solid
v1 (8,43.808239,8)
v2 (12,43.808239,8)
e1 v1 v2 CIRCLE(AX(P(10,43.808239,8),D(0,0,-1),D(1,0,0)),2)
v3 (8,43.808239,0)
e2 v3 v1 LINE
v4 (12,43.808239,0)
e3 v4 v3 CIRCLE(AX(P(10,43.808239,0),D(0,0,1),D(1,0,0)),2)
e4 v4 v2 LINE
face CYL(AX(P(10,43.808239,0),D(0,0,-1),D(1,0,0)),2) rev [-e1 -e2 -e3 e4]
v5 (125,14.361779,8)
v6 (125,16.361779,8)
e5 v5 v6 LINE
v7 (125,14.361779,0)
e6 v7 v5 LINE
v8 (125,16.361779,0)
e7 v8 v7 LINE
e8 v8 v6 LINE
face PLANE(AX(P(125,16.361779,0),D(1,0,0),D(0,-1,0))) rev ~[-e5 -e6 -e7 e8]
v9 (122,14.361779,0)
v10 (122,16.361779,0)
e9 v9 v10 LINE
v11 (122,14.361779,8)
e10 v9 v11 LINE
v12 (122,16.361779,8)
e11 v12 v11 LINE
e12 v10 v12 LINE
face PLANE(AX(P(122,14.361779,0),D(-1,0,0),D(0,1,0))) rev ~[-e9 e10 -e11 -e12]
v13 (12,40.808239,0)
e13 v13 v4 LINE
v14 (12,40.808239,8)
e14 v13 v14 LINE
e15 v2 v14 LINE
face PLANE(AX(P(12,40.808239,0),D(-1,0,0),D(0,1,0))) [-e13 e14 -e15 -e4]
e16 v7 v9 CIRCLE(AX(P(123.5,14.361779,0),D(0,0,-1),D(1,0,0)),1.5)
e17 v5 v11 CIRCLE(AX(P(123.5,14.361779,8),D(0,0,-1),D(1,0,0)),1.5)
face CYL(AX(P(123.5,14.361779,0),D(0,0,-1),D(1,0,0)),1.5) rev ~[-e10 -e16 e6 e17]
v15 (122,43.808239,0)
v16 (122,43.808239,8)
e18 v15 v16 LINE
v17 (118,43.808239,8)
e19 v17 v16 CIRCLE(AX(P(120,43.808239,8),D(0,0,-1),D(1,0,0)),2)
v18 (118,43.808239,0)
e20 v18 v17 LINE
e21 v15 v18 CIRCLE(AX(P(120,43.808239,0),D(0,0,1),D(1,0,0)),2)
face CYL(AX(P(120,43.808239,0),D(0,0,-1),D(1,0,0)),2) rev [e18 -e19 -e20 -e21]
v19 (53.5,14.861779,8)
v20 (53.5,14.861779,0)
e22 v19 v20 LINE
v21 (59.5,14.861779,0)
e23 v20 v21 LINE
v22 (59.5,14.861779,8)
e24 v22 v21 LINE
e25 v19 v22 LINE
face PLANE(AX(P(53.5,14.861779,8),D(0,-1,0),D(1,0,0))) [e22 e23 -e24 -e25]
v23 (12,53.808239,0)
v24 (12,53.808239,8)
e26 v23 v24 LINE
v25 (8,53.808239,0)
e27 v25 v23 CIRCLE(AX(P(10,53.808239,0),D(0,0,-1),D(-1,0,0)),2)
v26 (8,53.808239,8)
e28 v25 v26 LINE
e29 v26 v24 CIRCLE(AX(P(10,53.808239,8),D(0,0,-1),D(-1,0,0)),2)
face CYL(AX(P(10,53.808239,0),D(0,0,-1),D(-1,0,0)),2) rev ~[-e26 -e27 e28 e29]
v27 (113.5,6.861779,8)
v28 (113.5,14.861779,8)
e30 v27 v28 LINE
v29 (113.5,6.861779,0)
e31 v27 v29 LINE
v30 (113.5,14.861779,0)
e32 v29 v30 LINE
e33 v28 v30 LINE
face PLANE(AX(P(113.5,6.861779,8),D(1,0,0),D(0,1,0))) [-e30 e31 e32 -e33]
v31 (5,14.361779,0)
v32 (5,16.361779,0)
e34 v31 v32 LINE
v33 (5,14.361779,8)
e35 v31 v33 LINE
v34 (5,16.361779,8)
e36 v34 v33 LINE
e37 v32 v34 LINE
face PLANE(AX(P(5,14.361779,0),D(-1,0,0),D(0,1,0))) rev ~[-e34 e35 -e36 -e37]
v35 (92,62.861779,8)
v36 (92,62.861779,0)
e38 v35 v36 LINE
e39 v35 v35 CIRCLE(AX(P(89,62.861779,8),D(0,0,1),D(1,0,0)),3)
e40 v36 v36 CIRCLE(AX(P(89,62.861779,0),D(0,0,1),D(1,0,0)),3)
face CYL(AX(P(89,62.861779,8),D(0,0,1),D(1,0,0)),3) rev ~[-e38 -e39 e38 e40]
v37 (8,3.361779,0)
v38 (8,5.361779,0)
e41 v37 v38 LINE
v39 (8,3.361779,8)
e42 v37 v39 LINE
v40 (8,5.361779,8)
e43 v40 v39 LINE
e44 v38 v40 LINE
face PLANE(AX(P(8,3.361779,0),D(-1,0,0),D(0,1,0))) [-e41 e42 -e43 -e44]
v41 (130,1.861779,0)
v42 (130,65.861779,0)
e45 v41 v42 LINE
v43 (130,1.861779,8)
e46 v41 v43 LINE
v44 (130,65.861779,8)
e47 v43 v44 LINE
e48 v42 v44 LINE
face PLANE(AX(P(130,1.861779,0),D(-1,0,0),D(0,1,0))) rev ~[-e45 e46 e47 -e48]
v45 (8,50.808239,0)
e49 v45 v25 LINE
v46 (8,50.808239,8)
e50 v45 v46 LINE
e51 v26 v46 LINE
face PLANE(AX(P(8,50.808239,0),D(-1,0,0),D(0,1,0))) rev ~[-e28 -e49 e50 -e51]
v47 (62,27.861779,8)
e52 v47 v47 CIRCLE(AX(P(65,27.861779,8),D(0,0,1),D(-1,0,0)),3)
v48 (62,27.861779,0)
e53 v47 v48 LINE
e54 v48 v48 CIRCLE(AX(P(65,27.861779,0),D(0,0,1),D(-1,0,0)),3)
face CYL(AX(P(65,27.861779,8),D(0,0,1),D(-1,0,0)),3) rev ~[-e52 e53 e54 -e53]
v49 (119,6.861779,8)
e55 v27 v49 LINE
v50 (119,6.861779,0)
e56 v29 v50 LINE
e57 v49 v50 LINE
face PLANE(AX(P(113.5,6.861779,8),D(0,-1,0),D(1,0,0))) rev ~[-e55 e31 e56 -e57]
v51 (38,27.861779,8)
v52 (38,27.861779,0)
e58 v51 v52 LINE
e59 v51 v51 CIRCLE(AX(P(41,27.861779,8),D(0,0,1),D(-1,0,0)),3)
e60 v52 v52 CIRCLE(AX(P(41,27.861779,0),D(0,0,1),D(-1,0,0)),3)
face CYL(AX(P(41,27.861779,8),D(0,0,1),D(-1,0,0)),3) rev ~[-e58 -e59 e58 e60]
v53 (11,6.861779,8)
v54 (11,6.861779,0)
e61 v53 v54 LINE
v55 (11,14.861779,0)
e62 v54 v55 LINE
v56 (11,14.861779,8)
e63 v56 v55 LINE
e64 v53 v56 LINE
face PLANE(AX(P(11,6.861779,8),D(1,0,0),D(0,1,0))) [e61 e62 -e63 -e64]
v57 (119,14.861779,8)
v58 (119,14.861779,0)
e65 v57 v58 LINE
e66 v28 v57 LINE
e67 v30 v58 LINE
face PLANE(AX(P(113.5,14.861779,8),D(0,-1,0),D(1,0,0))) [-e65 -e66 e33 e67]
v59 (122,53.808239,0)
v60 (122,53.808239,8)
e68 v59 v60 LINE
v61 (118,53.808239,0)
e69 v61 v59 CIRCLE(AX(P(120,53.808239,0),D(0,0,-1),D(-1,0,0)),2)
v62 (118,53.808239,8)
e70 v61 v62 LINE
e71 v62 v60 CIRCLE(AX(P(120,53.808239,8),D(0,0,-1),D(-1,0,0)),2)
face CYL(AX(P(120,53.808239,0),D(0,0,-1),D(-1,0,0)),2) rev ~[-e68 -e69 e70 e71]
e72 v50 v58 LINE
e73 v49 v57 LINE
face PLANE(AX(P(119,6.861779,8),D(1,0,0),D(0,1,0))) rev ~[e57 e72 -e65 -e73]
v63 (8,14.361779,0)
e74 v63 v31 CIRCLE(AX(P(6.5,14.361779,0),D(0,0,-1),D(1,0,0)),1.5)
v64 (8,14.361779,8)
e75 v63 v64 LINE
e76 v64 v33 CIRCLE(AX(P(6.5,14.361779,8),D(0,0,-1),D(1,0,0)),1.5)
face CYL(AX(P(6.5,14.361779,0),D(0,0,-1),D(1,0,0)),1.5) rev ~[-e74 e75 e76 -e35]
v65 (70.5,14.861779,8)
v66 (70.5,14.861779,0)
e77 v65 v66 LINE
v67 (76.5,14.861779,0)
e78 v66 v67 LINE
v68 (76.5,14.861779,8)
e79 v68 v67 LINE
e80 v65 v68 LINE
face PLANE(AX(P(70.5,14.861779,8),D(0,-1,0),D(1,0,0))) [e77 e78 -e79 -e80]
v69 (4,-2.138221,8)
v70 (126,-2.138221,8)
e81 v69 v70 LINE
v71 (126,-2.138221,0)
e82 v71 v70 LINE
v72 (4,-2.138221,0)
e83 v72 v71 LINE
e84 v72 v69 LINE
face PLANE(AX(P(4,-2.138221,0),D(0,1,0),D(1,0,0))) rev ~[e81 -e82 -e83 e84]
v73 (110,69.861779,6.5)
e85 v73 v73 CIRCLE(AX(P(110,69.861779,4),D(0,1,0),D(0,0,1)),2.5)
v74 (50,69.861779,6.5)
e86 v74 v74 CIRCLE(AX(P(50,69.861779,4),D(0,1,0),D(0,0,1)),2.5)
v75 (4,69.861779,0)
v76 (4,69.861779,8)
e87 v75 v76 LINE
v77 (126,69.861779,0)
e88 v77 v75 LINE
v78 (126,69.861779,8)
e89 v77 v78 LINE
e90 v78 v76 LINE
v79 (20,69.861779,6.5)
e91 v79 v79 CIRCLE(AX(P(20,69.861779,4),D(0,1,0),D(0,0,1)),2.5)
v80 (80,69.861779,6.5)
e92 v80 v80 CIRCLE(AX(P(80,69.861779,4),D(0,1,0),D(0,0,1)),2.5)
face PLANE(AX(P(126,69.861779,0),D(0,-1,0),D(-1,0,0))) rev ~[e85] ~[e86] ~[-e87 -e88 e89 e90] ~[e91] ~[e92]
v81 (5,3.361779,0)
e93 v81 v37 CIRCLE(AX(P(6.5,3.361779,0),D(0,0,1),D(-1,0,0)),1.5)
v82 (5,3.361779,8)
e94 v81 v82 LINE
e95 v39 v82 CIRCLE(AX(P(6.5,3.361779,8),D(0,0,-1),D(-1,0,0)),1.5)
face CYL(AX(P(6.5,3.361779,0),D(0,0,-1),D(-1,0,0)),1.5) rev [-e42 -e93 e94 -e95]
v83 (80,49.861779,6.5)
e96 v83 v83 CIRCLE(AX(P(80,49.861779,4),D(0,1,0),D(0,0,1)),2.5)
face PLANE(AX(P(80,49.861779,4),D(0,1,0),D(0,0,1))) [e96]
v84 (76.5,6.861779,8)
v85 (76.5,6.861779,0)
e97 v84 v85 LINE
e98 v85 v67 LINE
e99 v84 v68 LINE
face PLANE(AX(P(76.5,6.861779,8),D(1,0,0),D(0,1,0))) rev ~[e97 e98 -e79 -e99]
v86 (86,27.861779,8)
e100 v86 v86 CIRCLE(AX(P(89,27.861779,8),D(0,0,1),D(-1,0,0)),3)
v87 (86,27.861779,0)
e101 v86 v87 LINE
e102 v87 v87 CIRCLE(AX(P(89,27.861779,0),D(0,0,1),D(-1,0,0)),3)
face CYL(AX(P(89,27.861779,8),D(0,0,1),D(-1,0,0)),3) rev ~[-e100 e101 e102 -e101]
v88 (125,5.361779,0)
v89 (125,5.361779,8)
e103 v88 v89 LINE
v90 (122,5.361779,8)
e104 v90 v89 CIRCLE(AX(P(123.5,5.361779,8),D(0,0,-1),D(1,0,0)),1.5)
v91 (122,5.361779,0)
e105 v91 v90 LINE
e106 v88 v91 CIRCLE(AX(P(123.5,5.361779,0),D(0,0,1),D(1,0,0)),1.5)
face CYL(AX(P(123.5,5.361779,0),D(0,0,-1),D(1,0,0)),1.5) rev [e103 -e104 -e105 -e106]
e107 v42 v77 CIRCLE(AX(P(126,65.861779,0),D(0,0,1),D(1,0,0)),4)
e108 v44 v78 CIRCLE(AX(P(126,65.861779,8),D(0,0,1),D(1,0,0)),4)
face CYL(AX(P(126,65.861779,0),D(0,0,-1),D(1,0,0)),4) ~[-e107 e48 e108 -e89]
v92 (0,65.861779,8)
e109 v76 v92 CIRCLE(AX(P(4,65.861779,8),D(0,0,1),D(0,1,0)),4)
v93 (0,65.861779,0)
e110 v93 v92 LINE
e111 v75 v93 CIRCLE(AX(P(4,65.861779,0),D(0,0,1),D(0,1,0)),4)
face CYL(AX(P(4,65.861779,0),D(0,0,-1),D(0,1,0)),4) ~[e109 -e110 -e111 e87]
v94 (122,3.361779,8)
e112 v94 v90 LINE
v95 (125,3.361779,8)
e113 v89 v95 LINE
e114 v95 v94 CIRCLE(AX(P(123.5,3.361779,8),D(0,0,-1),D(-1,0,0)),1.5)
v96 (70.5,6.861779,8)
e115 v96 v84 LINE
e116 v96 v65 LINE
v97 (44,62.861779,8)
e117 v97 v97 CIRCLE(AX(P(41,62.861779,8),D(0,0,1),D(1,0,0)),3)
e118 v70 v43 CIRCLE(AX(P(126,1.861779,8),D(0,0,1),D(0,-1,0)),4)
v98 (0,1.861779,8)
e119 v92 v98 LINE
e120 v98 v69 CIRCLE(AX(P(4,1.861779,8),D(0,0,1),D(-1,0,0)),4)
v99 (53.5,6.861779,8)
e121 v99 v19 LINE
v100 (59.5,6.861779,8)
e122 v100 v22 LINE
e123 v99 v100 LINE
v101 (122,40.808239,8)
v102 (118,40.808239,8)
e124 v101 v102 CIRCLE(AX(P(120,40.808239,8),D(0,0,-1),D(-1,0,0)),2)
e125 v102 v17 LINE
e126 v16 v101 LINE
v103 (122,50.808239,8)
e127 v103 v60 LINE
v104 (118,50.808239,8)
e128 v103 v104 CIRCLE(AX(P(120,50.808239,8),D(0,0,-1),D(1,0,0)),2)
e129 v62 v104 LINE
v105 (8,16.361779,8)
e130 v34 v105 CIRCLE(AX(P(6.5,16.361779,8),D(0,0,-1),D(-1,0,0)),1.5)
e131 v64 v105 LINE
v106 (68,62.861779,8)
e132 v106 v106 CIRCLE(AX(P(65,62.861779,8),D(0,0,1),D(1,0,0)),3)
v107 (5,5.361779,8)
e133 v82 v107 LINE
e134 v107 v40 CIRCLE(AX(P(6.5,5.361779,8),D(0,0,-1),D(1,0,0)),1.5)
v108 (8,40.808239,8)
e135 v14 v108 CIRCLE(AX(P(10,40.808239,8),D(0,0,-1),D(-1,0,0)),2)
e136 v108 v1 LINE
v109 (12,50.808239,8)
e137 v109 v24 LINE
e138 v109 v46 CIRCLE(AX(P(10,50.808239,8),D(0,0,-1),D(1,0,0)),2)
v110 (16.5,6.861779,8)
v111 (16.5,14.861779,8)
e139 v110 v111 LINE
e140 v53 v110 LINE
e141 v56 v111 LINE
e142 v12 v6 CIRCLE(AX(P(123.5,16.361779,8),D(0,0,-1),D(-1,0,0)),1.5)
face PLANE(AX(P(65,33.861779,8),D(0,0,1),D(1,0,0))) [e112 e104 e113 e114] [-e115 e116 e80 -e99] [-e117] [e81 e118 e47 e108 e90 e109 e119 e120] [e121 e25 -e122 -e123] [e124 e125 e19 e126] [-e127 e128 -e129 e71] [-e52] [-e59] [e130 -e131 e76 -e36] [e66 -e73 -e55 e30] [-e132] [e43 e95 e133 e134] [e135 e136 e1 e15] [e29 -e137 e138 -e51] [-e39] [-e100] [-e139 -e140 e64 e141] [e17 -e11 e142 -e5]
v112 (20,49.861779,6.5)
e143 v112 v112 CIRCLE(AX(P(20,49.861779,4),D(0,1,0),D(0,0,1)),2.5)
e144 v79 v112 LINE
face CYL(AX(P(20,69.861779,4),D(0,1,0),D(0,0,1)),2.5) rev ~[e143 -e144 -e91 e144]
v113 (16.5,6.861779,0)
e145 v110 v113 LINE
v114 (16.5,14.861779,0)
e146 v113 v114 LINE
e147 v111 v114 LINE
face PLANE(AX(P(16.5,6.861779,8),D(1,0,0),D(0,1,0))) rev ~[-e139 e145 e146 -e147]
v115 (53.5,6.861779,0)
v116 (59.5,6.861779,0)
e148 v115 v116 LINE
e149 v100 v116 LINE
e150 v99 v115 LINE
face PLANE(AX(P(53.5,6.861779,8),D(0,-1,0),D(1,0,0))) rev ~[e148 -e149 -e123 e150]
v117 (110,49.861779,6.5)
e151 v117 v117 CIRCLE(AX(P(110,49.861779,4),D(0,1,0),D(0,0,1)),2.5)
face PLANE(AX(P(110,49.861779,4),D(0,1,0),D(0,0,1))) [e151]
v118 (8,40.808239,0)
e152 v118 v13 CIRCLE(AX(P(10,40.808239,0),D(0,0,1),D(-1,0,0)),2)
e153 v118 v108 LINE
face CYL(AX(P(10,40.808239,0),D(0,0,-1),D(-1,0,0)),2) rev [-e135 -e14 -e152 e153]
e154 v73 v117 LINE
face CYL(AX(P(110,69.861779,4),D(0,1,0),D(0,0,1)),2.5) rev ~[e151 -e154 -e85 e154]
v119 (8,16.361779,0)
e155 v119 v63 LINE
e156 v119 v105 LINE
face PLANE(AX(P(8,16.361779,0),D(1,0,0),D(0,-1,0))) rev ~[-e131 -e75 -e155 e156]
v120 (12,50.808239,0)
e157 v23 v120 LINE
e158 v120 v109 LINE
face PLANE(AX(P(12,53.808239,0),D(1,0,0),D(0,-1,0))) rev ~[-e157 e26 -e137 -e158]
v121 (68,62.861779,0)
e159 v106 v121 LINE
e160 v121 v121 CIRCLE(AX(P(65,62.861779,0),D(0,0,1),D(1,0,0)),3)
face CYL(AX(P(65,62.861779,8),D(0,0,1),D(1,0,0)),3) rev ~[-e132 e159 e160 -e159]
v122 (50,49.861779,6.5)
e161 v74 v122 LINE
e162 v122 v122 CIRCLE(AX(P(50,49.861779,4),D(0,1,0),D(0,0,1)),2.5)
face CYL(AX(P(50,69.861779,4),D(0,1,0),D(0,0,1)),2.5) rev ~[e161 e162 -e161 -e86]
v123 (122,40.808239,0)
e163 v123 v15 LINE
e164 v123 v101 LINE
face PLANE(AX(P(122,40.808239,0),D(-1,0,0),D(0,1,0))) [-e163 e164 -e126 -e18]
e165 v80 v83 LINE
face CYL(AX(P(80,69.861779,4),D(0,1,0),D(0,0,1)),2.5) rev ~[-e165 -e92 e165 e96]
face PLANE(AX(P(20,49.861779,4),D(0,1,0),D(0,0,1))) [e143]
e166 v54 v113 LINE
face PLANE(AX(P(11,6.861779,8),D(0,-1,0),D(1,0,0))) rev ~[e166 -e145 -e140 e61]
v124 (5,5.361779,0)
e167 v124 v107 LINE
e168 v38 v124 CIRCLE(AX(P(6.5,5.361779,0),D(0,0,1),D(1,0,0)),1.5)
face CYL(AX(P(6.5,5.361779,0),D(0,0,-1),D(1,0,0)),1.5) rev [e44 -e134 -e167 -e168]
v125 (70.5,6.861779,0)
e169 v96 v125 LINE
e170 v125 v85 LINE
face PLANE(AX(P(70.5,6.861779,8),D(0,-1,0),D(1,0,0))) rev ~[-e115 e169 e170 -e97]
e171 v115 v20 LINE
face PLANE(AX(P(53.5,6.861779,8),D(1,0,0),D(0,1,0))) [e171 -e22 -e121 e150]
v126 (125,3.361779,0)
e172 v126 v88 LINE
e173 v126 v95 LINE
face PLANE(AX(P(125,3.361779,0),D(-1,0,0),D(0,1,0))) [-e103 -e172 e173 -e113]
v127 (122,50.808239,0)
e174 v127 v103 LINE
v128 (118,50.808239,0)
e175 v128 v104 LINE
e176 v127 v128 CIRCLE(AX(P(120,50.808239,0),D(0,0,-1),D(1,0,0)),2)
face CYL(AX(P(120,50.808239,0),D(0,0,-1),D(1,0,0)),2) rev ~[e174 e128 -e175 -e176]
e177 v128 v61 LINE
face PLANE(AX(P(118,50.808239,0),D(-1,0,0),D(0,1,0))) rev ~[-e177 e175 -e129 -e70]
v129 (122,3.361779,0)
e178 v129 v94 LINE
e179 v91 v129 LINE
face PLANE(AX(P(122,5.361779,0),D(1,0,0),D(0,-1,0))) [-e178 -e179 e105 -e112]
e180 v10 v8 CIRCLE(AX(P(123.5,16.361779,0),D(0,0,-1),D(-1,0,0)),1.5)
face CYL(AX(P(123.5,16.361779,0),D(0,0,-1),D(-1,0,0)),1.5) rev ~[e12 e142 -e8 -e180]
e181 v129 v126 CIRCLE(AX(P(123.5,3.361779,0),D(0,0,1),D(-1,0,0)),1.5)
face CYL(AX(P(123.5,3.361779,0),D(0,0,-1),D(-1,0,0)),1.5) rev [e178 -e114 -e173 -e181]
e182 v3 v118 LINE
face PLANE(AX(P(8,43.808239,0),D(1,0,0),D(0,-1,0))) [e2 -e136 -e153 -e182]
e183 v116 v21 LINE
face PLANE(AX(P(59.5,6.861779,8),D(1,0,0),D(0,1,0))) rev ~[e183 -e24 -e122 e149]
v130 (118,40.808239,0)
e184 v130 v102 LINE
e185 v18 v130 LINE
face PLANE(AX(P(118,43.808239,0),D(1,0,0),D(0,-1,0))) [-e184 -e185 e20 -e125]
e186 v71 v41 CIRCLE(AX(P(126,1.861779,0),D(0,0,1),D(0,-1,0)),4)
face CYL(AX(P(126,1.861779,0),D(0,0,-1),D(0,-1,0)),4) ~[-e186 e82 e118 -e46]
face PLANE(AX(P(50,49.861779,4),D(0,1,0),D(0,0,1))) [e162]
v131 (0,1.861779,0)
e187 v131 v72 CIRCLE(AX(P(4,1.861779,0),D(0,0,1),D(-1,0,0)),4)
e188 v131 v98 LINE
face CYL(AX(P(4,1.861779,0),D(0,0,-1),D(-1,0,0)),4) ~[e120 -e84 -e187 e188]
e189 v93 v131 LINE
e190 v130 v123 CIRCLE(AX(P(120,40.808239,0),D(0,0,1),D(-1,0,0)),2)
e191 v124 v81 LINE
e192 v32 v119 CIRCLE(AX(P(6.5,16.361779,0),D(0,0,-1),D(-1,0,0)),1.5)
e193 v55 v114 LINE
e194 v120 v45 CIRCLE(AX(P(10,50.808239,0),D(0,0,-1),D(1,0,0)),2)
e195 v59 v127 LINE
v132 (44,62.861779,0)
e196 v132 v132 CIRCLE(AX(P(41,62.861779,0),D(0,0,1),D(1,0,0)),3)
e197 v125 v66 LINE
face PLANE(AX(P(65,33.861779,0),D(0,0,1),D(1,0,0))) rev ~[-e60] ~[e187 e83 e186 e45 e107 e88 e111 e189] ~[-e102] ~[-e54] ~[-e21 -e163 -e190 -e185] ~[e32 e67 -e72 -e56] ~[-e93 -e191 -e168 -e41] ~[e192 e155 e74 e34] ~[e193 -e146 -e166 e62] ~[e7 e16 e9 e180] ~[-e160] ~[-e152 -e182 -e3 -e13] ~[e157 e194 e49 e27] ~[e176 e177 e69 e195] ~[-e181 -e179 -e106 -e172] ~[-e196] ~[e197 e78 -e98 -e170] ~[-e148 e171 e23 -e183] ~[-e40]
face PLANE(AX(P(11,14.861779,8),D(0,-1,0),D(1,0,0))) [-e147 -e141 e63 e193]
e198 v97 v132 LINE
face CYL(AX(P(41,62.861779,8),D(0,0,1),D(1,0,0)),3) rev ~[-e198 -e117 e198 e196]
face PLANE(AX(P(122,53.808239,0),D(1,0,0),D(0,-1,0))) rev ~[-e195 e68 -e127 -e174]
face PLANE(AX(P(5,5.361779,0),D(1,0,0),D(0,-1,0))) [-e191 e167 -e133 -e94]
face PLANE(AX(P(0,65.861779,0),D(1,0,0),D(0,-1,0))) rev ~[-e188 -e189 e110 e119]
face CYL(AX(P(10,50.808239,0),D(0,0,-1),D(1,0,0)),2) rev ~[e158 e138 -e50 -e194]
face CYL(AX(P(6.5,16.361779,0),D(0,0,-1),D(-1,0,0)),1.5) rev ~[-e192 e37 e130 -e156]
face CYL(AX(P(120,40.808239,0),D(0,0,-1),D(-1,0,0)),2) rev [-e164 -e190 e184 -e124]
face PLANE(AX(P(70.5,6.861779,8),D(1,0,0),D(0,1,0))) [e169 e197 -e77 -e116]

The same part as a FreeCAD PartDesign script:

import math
import FreeCAD as App
import Part
import Sketcher
from FreeCAD import Vector
Q = App.Units.Quantity

doc = App.newDocument("Part")
params = doc.addObject("Spreadsheet::Sheet", "Params")
for row, (alias, value) in enumerate([
    ("sketch1_radius", "4 mm"),
    ("sketch1_width", "122 mm"),
    ("sketch1_height", "64 mm"),
    ("pad1_length", "8 mm"),
    ("sketch2_width", "6 mm"),
    ("sketch2_height", "8 mm"),
    ("sketch2_width2", "5.5 mm"),
    ("pocket1_length", "10 mm"),
    ("sketch3_diameter", "5 mm"),
    ("pocket2_length", "20 mm"),
    ("sketch4_diameter", "6 mm"),
    ("sketch5_radius", "1.5 mm"),
    ("sketch5_height", "2 mm"),
    ("sketch6_radius", "2 mm"),
    ("sketch6_height", "3 mm"),
], start=1):
    params.set(f"A{row}", alias)
    params.set(f"B{row}", "=" + value)
    params.setAlias(f"B{row}", alias)

body = doc.addObject("PartDesign::Body", "Body")

sketch1 = body.newObject("Sketcher::SketchObject", "Sketch")
sketch1.AttachmentSupport = (doc.getObject("XY_Plane"), [""])
sketch1.MapMode = "FlatFace"
sketch1.addGeometry(Part.LineSegment(Vector(4, -2.1, 0), Vector(126, -2.1, 0)), False)
sketch1.addGeometry(Part.ArcOfCircle(Part.Circle(Vector(126, 1.9, 0), Vector(0, 0, 1), 4), math.radians(-90), math.radians(0)), False)
sketch1.addGeometry(Part.LineSegment(Vector(130, 1.9, 0), Vector(130, 65.9, 0)), False)
sketch1.addGeometry(Part.ArcOfCircle(Part.Circle(Vector(126, 65.9, 0), Vector(0, 0, 1), 4), math.radians(0), math.radians(90)), False)
sketch1.addGeometry(Part.LineSegment(Vector(126, 69.9, 0), Vector(4, 69.9, 0)), False)
sketch1.addGeometry(Part.ArcOfCircle(Part.Circle(Vector(4, 65.9, 0), Vector(0, 0, 1), 4), math.radians(90), math.radians(180)), False)
sketch1.addGeometry(Part.LineSegment(Vector(0, 65.9, 0), Vector(0, 1.9, 0)), False)
sketch1.addGeometry(Part.ArcOfCircle(Part.Circle(Vector(4, 1.9, 0), Vector(0, 0, 1), 4), math.radians(-180), math.radians(-90)), False)
sketch1.addConstraint(Sketcher.Constraint("Tangent", 0, 2, 1, 1))
sketch1.addConstraint(Sketcher.Constraint("Tangent", 1, 2, 2, 1))
sketch1.addConstraint(Sketcher.Constraint("Tangent", 2, 2, 3, 1))
sketch1.addConstraint(Sketcher.Constraint("Tangent", 3, 2, 4, 1))
sketch1.addConstraint(Sketcher.Constraint("Tangent", 4, 2, 5, 1))
sketch1.addConstraint(Sketcher.Constraint("Tangent", 5, 2, 6, 1))
sketch1.addConstraint(Sketcher.Constraint("Tangent", 6, 2, 7, 1))
sketch1.addConstraint(Sketcher.Constraint("Tangent", 7, 2, 0, 1))
sketch1.addConstraint(Sketcher.Constraint("Horizontal", 0))
sketch1.addConstraint(Sketcher.Constraint("Vertical", 2))
sketch1.addConstraint(Sketcher.Constraint("Horizontal", 4))
sketch1.addConstraint(Sketcher.Constraint("Vertical", 6))
sketch1.addConstraint(Sketcher.Constraint("Equal", 1, 3))
sketch1.addConstraint(Sketcher.Constraint("Equal", 3, 5))
sketch1.addConstraint(Sketcher.Constraint("Equal", 5, 7))
sketch1.addConstraint(Sketcher.Constraint("PointOnObject", 5, 2, -2))
sketch1.addConstraint(Sketcher.Constraint("Radius", 1, Q("4 mm")))
sketch1.addConstraint(Sketcher.Constraint("DistanceX", 0, 1, 0, 2, Q("122 mm")))
sketch1.addConstraint(Sketcher.Constraint("DistanceY", 2, 1, 2, 2, Q("64 mm")))
sketch1.addConstraint(Sketcher.Constraint("DistanceY", -1, 1, 1, 3, Q("1.861779 mm")))
sketch1.setExpression("Constraints[16]", "Params.sketch1_radius")
sketch1.setExpression("Constraints[17]", "Params.sketch1_width")
sketch1.setExpression("Constraints[18]", "Params.sketch1_height")
pad1 = body.newObject("PartDesign::Pad", "Pad")
pad1.Profile = sketch1
pad1.setExpression("Length", "Params.pad1_length")

sketch2 = body.newObject("Sketcher::SketchObject", "Sketch001")
sketch2.AttachmentSupport = (doc.getObject("XY_Plane"), [""])
sketch2.MapMode = "FlatFace"
sketch2.AttachmentOffset = App.Placement(Vector(0, 0, 8), App.Rotation())
sketch2.addGeometry(Part.LineSegment(Vector(11, 15, 0), Vector(11, 7, 0)), False)
sketch2.addGeometry(Part.LineSegment(Vector(11, 7, 0), Vector(16, 7, 0)), False)
sketch2.addGeometry(Part.LineSegment(Vector(16, 7, 0), Vector(16, 15, 0)), False)
sketch2.addGeometry(Part.LineSegment(Vector(16, 15, 0), Vector(11, 15, 0)), False)
sketch2.addGeometry(Part.LineSegment(Vector(54, 15, 0), Vector(54, 7, 0)), False)
sketch2.addGeometry(Part.LineSegment(Vector(54, 7, 0), Vector(60, 7, 0)), False)
sketch2.addGeometry(Part.LineSegment(Vector(60, 7, 0), Vector(60, 15, 0)), False)
sketch2.addGeometry(Part.LineSegment(Vector(60, 15, 0), Vector(54, 15, 0)), False)
sketch2.addGeometry(Part.LineSegment(Vector(70, 15, 0), Vector(70, 7, 0)), False)
sketch2.addGeometry(Part.LineSegment(Vector(70, 7, 0), Vector(76, 7, 0)), False)
sketch2.addGeometry(Part.LineSegment(Vector(76, 7, 0), Vector(76, 15, 0)), False)
sketch2.addGeometry(Part.LineSegment(Vector(76, 15, 0), Vector(70, 15, 0)), False)
sketch2.addGeometry(Part.LineSegment(Vector(114, 15, 0), Vector(114, 7, 0)), False)
sketch2.addGeometry(Part.LineSegment(Vector(114, 7, 0), Vector(119, 7, 0)), False)
sketch2.addGeometry(Part.LineSegment(Vector(119, 7, 0), Vector(119, 15, 0)), False)
sketch2.addGeometry(Part.LineSegment(Vector(119, 15, 0), Vector(114, 15, 0)), False)
sketch2.addConstraint(Sketcher.Constraint("Coincident", 0, 2, 1, 1))
sketch2.addConstraint(Sketcher.Constraint("Coincident", 1, 2, 2, 1))
sketch2.addConstraint(Sketcher.Constraint("Coincident", 2, 2, 3, 1))
sketch2.addConstraint(Sketcher.Constraint("Coincident", 3, 2, 0, 1))
sketch2.addConstraint(Sketcher.Constraint("Coincident", 4, 2, 5, 1))
sketch2.addConstraint(Sketcher.Constraint("Coincident", 5, 2, 6, 1))
sketch2.addConstraint(Sketcher.Constraint("Coincident", 6, 2, 7, 1))
sketch2.addConstraint(Sketcher.Constraint("Coincident", 7, 2, 4, 1))
sketch2.addConstraint(Sketcher.Constraint("Coincident", 8, 2, 9, 1))
sketch2.addConstraint(Sketcher.Constraint("Coincident", 9, 2, 10, 1))
sketch2.addConstraint(Sketcher.Constraint("Coincident", 10, 2, 11, 1))
sketch2.addConstraint(Sketcher.Constraint("Coincident", 11, 2, 8, 1))
sketch2.addConstraint(Sketcher.Constraint("Coincident", 12, 2, 13, 1))
sketch2.addConstraint(Sketcher.Constraint("Coincident", 13, 2, 14, 1))
sketch2.addConstraint(Sketcher.Constraint("Coincident", 14, 2, 15, 1))
sketch2.addConstraint(Sketcher.Constraint("Coincident", 15, 2, 12, 1))
sketch2.addConstraint(Sketcher.Constraint("Vertical", 0))
sketch2.addConstraint(Sketcher.Constraint("Horizontal", 1))
sketch2.addConstraint(Sketcher.Constraint("Vertical", 2))
sketch2.addConstraint(Sketcher.Constraint("Horizontal", 3))
sketch2.addConstraint(Sketcher.Constraint("Vertical", 4))
sketch2.addConstraint(Sketcher.Constraint("Horizontal", 5))
sketch2.addConstraint(Sketcher.Constraint("Vertical", 6))
sketch2.addConstraint(Sketcher.Constraint("Horizontal", 7))
sketch2.addConstraint(Sketcher.Constraint("Vertical", 8))
sketch2.addConstraint(Sketcher.Constraint("Horizontal", 9))
sketch2.addConstraint(Sketcher.Constraint("Vertical", 10))
sketch2.addConstraint(Sketcher.Constraint("Horizontal", 11))
sketch2.addConstraint(Sketcher.Constraint("Vertical", 12))
sketch2.addConstraint(Sketcher.Constraint("Horizontal", 13))
sketch2.addConstraint(Sketcher.Constraint("Vertical", 14))
sketch2.addConstraint(Sketcher.Constraint("Horizontal", 15))
sketch2.addConstraint(Sketcher.Constraint("Horizontal", 1, 2, 4, 2))
sketch2.addConstraint(Sketcher.Constraint("Horizontal", 3, 2, 6, 2))
sketch2.addConstraint(Sketcher.Constraint("Horizontal", 5, 2, 8, 2))
sketch2.addConstraint(Sketcher.Constraint("Horizontal", 7, 2, 10, 2))
sketch2.addConstraint(Sketcher.Constraint("Horizontal", 9, 2, 12, 2))
sketch2.addConstraint(Sketcher.Constraint("Horizontal", 11, 2, 14, 2))
sketch2.addConstraint(Sketcher.Constraint("Equal", 7, 9))
sketch2.addConstraint(Sketcher.Constraint("Equal", 3, 13))
sketch2.addConstraint(Sketcher.Constraint("DistanceX", 5, 1, 5, 2, Q("6 mm")))
sketch2.addConstraint(Sketcher.Constraint("DistanceY", 0, 2, 0, 1, Q("8 mm")))
sketch2.addConstraint(Sketcher.Constraint("DistanceX", 1, 1, 1, 2, Q("5.5 mm")))
sketch2.addConstraint(Sketcher.Constraint("DistanceX", -1, 1, 0, 2, Q("11 mm")))
sketch2.addConstraint(Sketcher.Constraint("DistanceX", -1, 1, 13, 2, Q("119 mm")))
sketch2.addConstraint(Sketcher.Constraint("DistanceX", 1, 2, 4, 2, Q("37 mm")))
sketch2.addConstraint(Sketcher.Constraint("DistanceX", 5, 2, 8, 2, Q("11 mm")))
sketch2.addConstraint(Sketcher.Constraint("DistanceY", -1, 1, 0, 2, Q("6.861779 mm")))
sketch2.setExpression("Constraints[40]", "Params.sketch2_width")
sketch2.setExpression("Constraints[41]", "Params.sketch2_height")
sketch2.setExpression("Constraints[42]", "Params.sketch2_width2")
pocket1 = body.newObject("PartDesign::Pocket", "Pocket")
pocket1.Profile = sketch2
pocket1.setExpression("Length", "Params.pocket1_length")

sketch3 = body.newObject("Sketcher::SketchObject", "Sketch002")
sketch3.AttachmentSupport = (doc.getObject("XZ_Plane"), [""])
sketch3.MapMode = "FlatFace"
sketch3.AttachmentOffset = App.Placement(Vector(0, 0, -69.861779), App.Rotation())
sketch3.addGeometry(Part.Circle(Vector(20, 4, 0), Vector(0, 0, 1), 2.5), False)
sketch3.addGeometry(Part.Circle(Vector(50, 4, 0), Vector(0, 0, 1), 2.5), False)
sketch3.addGeometry(Part.Circle(Vector(80, 4, 0), Vector(0, 0, 1), 2.5), False)
sketch3.addGeometry(Part.Circle(Vector(110, 4, 0), Vector(0, 0, 1), 2.5), False)
sketch3.addConstraint(Sketcher.Constraint("Equal", 0, 1))
sketch3.addConstraint(Sketcher.Constraint("Equal", 1, 2))
sketch3.addConstraint(Sketcher.Constraint("Equal", 2, 3))
sketch3.addConstraint(Sketcher.Constraint("Horizontal", 0, 3, 1, 3))
sketch3.addConstraint(Sketcher.Constraint("Horizontal", 1, 3, 2, 3))
sketch3.addConstraint(Sketcher.Constraint("Horizontal", 2, 3, 3, 3))
sketch3.addConstraint(Sketcher.Constraint("Diameter", 0, Q("5 mm")))
sketch3.addConstraint(Sketcher.Constraint("DistanceX", -1, 1, 0, 3, Q("20 mm")))
sketch3.addConstraint(Sketcher.Constraint("DistanceY", -1, 1, 0, 3, Q("4 mm")))
sketch3.addConstraint(Sketcher.Constraint("DistanceX", -1, 1, 1, 3, Q("50 mm")))
sketch3.addConstraint(Sketcher.Constraint("DistanceX", -1, 1, 2, 3, Q("80 mm")))
sketch3.addConstraint(Sketcher.Constraint("DistanceX", -1, 1, 3, 3, Q("110 mm")))
sketch3.setExpression("Constraints[6]", "Params.sketch3_diameter")
pocket2 = body.newObject("PartDesign::Pocket", "Pocket001")
pocket2.Profile = sketch3
pocket2.setExpression("Length", "Params.pocket2_length")
pocket2.Reversed = True

sketch4 = body.newObject("Sketcher::SketchObject", "Sketch003")
sketch4.AttachmentSupport = (doc.getObject("XY_Plane"), [""])
sketch4.MapMode = "FlatFace"
sketch4.AttachmentOffset = App.Placement(Vector(0, 0, 8), App.Rotation())
sketch4.addGeometry(Part.Circle(Vector(41, 62.9, 0), Vector(0, 0, 1), 3), False)
sketch4.addGeometry(Part.Circle(Vector(41, 27.9, 0), Vector(0, 0, 1), 3), False)
sketch4.addGeometry(Part.Circle(Vector(65, 62.9, 0), Vector(0, 0, 1), 3), False)
sketch4.addGeometry(Part.Circle(Vector(65, 27.9, 0), Vector(0, 0, 1), 3), False)
sketch4.addGeometry(Part.Circle(Vector(89, 62.9, 0), Vector(0, 0, 1), 3), False)
sketch4.addGeometry(Part.Circle(Vector(89, 27.9, 0), Vector(0, 0, 1), 3), False)
sketch4.addConstraint(Sketcher.Constraint("Equal", 0, 1))
sketch4.addConstraint(Sketcher.Constraint("Equal", 1, 2))
sketch4.addConstraint(Sketcher.Constraint("Equal", 2, 3))
sketch4.addConstraint(Sketcher.Constraint("Equal", 3, 4))
sketch4.addConstraint(Sketcher.Constraint("Equal", 4, 5))
sketch4.addConstraint(Sketcher.Constraint("Horizontal", 0, 3, 2, 3))
sketch4.addConstraint(Sketcher.Constraint("Horizontal", 1, 3, 3, 3))
sketch4.addConstraint(Sketcher.Constraint("Horizontal", 2, 3, 4, 3))
sketch4.addConstraint(Sketcher.Constraint("Horizontal", 3, 3, 5, 3))
sketch4.addConstraint(Sketcher.Constraint("Vertical", 0, 3, 1, 3))
sketch4.addConstraint(Sketcher.Constraint("Vertical", 2, 3, 3, 3))
sketch4.addConstraint(Sketcher.Constraint("Vertical", 4, 3, 5, 3))
sketch4.addConstraint(Sketcher.Constraint("Diameter", 0, Q("6 mm")))
sketch4.addConstraint(Sketcher.Constraint("DistanceX", -1, 1, 0, 3, Q("41 mm")))
sketch4.addConstraint(Sketcher.Constraint("DistanceX", -1, 1, 2, 3, Q("65 mm")))
sketch4.addConstraint(Sketcher.Constraint("DistanceX", -1, 1, 4, 3, Q("89 mm")))
sketch4.addConstraint(Sketcher.Constraint("DistanceY", 1, 3, 0, 3, Q("35 mm")))
sketch4.addConstraint(Sketcher.Constraint("DistanceY", -1, 1, 0, 3, Q("62.861779 mm")))
sketch4.setExpression("Constraints[12]", "Params.sketch4_diameter")
pocket3 = body.newObject("PartDesign::Pocket", "Pocket002")
pocket3.Profile = sketch4
pocket3.Type = "ThroughAll"

sketch5 = body.newObject("Sketcher::SketchObject", "Sketch004")
sketch5.AttachmentSupport = (doc.getObject("XY_Plane"), [""])
sketch5.MapMode = "FlatFace"
sketch5.addGeometry(Part.LineSegment(Vector(125, 5.4, 0), Vector(125, 3.4, 0)), False)
sketch5.addGeometry(Part.ArcOfCircle(Part.Circle(Vector(123.5, 3.4, 0), Vector(0, 0, 1), 1.5), math.radians(180), math.radians(360)), False)
sketch5.addGeometry(Part.LineSegment(Vector(122, 3.4, 0), Vector(122, 5.4, 0)), False)
sketch5.addGeometry(Part.ArcOfCircle(Part.Circle(Vector(123.5, 5.4, 0), Vector(0, 0, 1), 1.5), math.radians(0), math.radians(180)), False)
sketch5.addGeometry(Part.LineSegment(Vector(125, 16.4, 0), Vector(125, 14.4, 0)), False)
sketch5.addGeometry(Part.ArcOfCircle(Part.Circle(Vector(123.5, 14.4, 0), Vector(0, 0, 1), 1.5), math.radians(180), math.radians(360)), False)
sketch5.addGeometry(Part.LineSegment(Vector(122, 14.4, 0), Vector(122, 16.4, 0)), False)
sketch5.addGeometry(Part.ArcOfCircle(Part.Circle(Vector(123.5, 16.4, 0), Vector(0, 0, 1), 1.5), math.radians(0), math.radians(180)), False)
sketch5.addGeometry(Part.LineSegment(Vector(8, 5.4, 0), Vector(8, 3.4, 0)), False)
sketch5.addGeometry(Part.ArcOfCircle(Part.Circle(Vector(6.5, 3.4, 0), Vector(0, 0, 1), 1.5), math.radians(180), math.radians(360)), False)
sketch5.addGeometry(Part.LineSegment(Vector(5, 3.4, 0), Vector(5, 5.4, 0)), False)
sketch5.addGeometry(Part.ArcOfCircle(Part.Circle(Vector(6.5, 5.4, 0), Vector(0, 0, 1), 1.5), math.radians(0), math.radians(180)), False)
sketch5.addGeometry(Part.LineSegment(Vector(8, 16.4, 0), Vector(8, 14.4, 0)), False)
sketch5.addGeometry(Part.ArcOfCircle(Part.Circle(Vector(6.5, 14.4, 0), Vector(0, 0, 1), 1.5), math.radians(180), math.radians(360)), False)
sketch5.addGeometry(Part.LineSegment(Vector(5, 14.4, 0), Vector(5, 16.4, 0)), False)
sketch5.addGeometry(Part.ArcOfCircle(Part.Circle(Vector(6.5, 16.4, 0), Vector(0, 0, 1), 1.5), math.radians(0), math.radians(180)), False)
sketch5.addConstraint(Sketcher.Constraint("Tangent", 0, 2, 1, 2))
sketch5.addConstraint(Sketcher.Constraint("Tangent", 1, 1, 2, 1))
sketch5.addConstraint(Sketcher.Constraint("Tangent", 2, 2, 3, 2))
sketch5.addConstraint(Sketcher.Constraint("Tangent", 3, 1, 0, 1))
sketch5.addConstraint(Sketcher.Constraint("Tangent", 4, 2, 5, 2))
sketch5.addConstraint(Sketcher.Constraint("Tangent", 5, 1, 6, 1))
sketch5.addConstraint(Sketcher.Constraint("Tangent", 6, 2, 7, 2))
sketch5.addConstraint(Sketcher.Constraint("Tangent", 7, 1, 4, 1))
sketch5.addConstraint(Sketcher.Constraint("Tangent", 8, 2, 9, 2))
sketch5.addConstraint(Sketcher.Constraint("Tangent", 9, 1, 10, 1))
sketch5.addConstraint(Sketcher.Constraint("Tangent", 10, 2, 11, 2))
sketch5.addConstraint(Sketcher.Constraint("Tangent", 11, 1, 8, 1))
sketch5.addConstraint(Sketcher.Constraint("Tangent", 12, 2, 13, 2))
sketch5.addConstraint(Sketcher.Constraint("Tangent", 13, 1, 14, 1))
sketch5.addConstraint(Sketcher.Constraint("Tangent", 14, 2, 15, 2))
sketch5.addConstraint(Sketcher.Constraint("Tangent", 15, 1, 12, 1))
sketch5.addConstraint(Sketcher.Constraint("Vertical", 0))
sketch5.addConstraint(Sketcher.Constraint("Vertical", 2))
sketch5.addConstraint(Sketcher.Constraint("Vertical", 4))
sketch5.addConstraint(Sketcher.Constraint("Vertical", 6))
sketch5.addConstraint(Sketcher.Constraint("Vertical", 8))
sketch5.addConstraint(Sketcher.Constraint("Vertical", 10))
sketch5.addConstraint(Sketcher.Constraint("Vertical", 12))
sketch5.addConstraint(Sketcher.Constraint("Vertical", 14))
sketch5.addConstraint(Sketcher.Constraint("Equal", 3, 5))
sketch5.addConstraint(Sketcher.Constraint("Equal", 7, 9))
sketch5.addConstraint(Sketcher.Constraint("Equal", 11, 13))
sketch5.addConstraint(Sketcher.Constraint("Horizontal", 1, 3, 9, 3))
sketch5.addConstraint(Sketcher.Constraint("Horizontal", 3, 3, 11, 3))
sketch5.addConstraint(Sketcher.Constraint("Horizontal", 5, 3, 13, 3))
sketch5.addConstraint(Sketcher.Constraint("Horizontal", 7, 3, 15, 3))
sketch5.addConstraint(Sketcher.Constraint("Vertical", 3, 3, 5, 3))
sketch5.addConstraint(Sketcher.Constraint("Vertical", 11, 3, 13, 3))
sketch5.addConstraint(Sketcher.Constraint("Equal", 2, 4))
sketch5.addConstraint(Sketcher.Constraint("Radius", 1, Q("1.5 mm")))
sketch5.addConstraint(Sketcher.Constraint("DistanceY", 0, 2, 0, 1, Q("2 mm")))
sketch5.addConstraint(Sketcher.Constraint("DistanceX", -1, 1, 0, 2, Q("125 mm")))
sketch5.addConstraint(Sketcher.Constraint("DistanceX", -1, 1, 8, 2, Q("8 mm")))
sketch5.addConstraint(Sketcher.Constraint("DistanceY", 3, 3, 5, 3, Q("9 mm")))
sketch5.addConstraint(Sketcher.Constraint("DistanceY", -1, 1, 1, 3, Q("3.361779 mm")))
sketch5.setExpression("Constraints[34]", "Params.sketch5_radius")
sketch5.setExpression("Constraints[35]", "Params.sketch5_height")
pocket4 = body.newObject("PartDesign::Pocket", "Pocket003")
pocket4.Profile = sketch5
pocket4.Type = "ThroughAll"
pocket4.Reversed = True

sketch6 = body.newObject("Sketcher::SketchObject", "Sketch005")
sketch6.AttachmentSupport = (doc.getObject("XY_Plane"), [""])
sketch6.MapMode = "FlatFace"
sketch6.addGeometry(Part.LineSegment(Vector(122, 43.8, 0), Vector(122, 40.8, 0)), False)
sketch6.addGeometry(Part.ArcOfCircle(Part.Circle(Vector(120, 40.8, 0), Vector(0, 0, 1), 2), math.radians(180), math.radians(360)), False)
sketch6.addGeometry(Part.LineSegment(Vector(118, 40.8, 0), Vector(118, 43.8, 0)), False)
sketch6.addGeometry(Part.ArcOfCircle(Part.Circle(Vector(120, 43.8, 0), Vector(0, 0, 1), 2), math.radians(0), math.radians(180)), False)
sketch6.addGeometry(Part.LineSegment(Vector(122, 53.8, 0), Vector(122, 50.8, 0)), False)
sketch6.addGeometry(Part.ArcOfCircle(Part.Circle(Vector(120, 50.8, 0), Vector(0, 0, 1), 2), math.radians(180), math.radians(360)), False)
sketch6.addGeometry(Part.LineSegment(Vector(118, 50.8, 0), Vector(118, 53.8, 0)), False)
sketch6.addGeometry(Part.ArcOfCircle(Part.Circle(Vector(120, 53.8, 0), Vector(0, 0, 1), 2), math.radians(0), math.radians(180)), False)
sketch6.addGeometry(Part.LineSegment(Vector(12, 43.8, 0), Vector(12, 40.8, 0)), False)
sketch6.addGeometry(Part.ArcOfCircle(Part.Circle(Vector(10, 40.8, 0), Vector(0, 0, 1), 2), math.radians(180), math.radians(360)), False)
sketch6.addGeometry(Part.LineSegment(Vector(8, 40.8, 0), Vector(8, 43.8, 0)), False)
sketch6.addGeometry(Part.ArcOfCircle(Part.Circle(Vector(10, 43.8, 0), Vector(0, 0, 1), 2), math.radians(0), math.radians(180)), False)
sketch6.addGeometry(Part.LineSegment(Vector(12, 53.8, 0), Vector(12, 50.8, 0)), False)
sketch6.addGeometry(Part.ArcOfCircle(Part.Circle(Vector(10, 50.8, 0), Vector(0, 0, 1), 2), math.radians(180), math.radians(360)), False)
sketch6.addGeometry(Part.LineSegment(Vector(8, 50.8, 0), Vector(8, 53.8, 0)), False)
sketch6.addGeometry(Part.ArcOfCircle(Part.Circle(Vector(10, 53.8, 0), Vector(0, 0, 1), 2), math.radians(0), math.radians(180)), False)
sketch6.addConstraint(Sketcher.Constraint("Tangent", 0, 2, 1, 2))
sketch6.addConstraint(Sketcher.Constraint("Tangent", 1, 1, 2, 1))
sketch6.addConstraint(Sketcher.Constraint("Tangent", 2, 2, 3, 2))
sketch6.addConstraint(Sketcher.Constraint("Tangent", 3, 1, 0, 1))
sketch6.addConstraint(Sketcher.Constraint("Tangent", 4, 2, 5, 2))
sketch6.addConstraint(Sketcher.Constraint("Tangent", 5, 1, 6, 1))
sketch6.addConstraint(Sketcher.Constraint("Tangent", 6, 2, 7, 2))
sketch6.addConstraint(Sketcher.Constraint("Tangent", 7, 1, 4, 1))
sketch6.addConstraint(Sketcher.Constraint("Tangent", 8, 2, 9, 2))
sketch6.addConstraint(Sketcher.Constraint("Tangent", 9, 1, 10, 1))
sketch6.addConstraint(Sketcher.Constraint("Tangent", 10, 2, 11, 2))
sketch6.addConstraint(Sketcher.Constraint("Tangent", 11, 1, 8, 1))
sketch6.addConstraint(Sketcher.Constraint("Tangent", 12, 2, 13, 2))
sketch6.addConstraint(Sketcher.Constraint("Tangent", 13, 1, 14, 1))
sketch6.addConstraint(Sketcher.Constraint("Tangent", 14, 2, 15, 2))
sketch6.addConstraint(Sketcher.Constraint("Tangent", 15, 1, 12, 1))
sketch6.addConstraint(Sketcher.Constraint("Vertical", 0))
sketch6.addConstraint(Sketcher.Constraint("Vertical", 2))
sketch6.addConstraint(Sketcher.Constraint("Vertical", 4))
sketch6.addConstraint(Sketcher.Constraint("Vertical", 6))
sketch6.addConstraint(Sketcher.Constraint("Vertical", 8))
sketch6.addConstraint(Sketcher.Constraint("Vertical", 10))
sketch6.addConstraint(Sketcher.Constraint("Vertical", 12))
sketch6.addConstraint(Sketcher.Constraint("Vertical", 14))
sketch6.addConstraint(Sketcher.Constraint("Equal", 3, 5))
sketch6.addConstraint(Sketcher.Constraint("Equal", 7, 9))
sketch6.addConstraint(Sketcher.Constraint("Equal", 11, 13))
sketch6.addConstraint(Sketcher.Constraint("Horizontal", 1, 3, 9, 3))
sketch6.addConstraint(Sketcher.Constraint("Horizontal", 3, 3, 11, 3))
sketch6.addConstraint(Sketcher.Constraint("Horizontal", 5, 3, 13, 3))
sketch6.addConstraint(Sketcher.Constraint("Horizontal", 7, 3, 15, 3))
sketch6.addConstraint(Sketcher.Constraint("Vertical", 3, 3, 5, 3))
sketch6.addConstraint(Sketcher.Constraint("Vertical", 11, 3, 13, 3))
sketch6.addConstraint(Sketcher.Constraint("Equal", 2, 4))
sketch6.addConstraint(Sketcher.Constraint("Radius", 1, Q("2 mm")))
sketch6.addConstraint(Sketcher.Constraint("DistanceY", 0, 2, 0, 1, Q("3 mm")))
sketch6.addConstraint(Sketcher.Constraint("DistanceX", -1, 1, 1, 3, Q("120 mm")))
sketch6.addConstraint(Sketcher.Constraint("DistanceX", -1, 1, 9, 3, Q("10 mm")))
sketch6.addConstraint(Sketcher.Constraint("DistanceY", 3, 3, 5, 3, Q("7 mm")))
sketch6.addConstraint(Sketcher.Constraint("DistanceY", -1, 1, 1, 3, Q("40.808239 mm")))
sketch6.setExpression("Constraints[34]", "Params.sketch6_radius")
sketch6.setExpression("Constraints[35]", "Params.sketch6_height")
pocket5 = body.newObject("PartDesign::Pocket", "Pocket004")
pocket5.Profile = sketch6
pocket5.Type = "ThroughAll"
pocket5.Reversed = True

doc.recompute()
